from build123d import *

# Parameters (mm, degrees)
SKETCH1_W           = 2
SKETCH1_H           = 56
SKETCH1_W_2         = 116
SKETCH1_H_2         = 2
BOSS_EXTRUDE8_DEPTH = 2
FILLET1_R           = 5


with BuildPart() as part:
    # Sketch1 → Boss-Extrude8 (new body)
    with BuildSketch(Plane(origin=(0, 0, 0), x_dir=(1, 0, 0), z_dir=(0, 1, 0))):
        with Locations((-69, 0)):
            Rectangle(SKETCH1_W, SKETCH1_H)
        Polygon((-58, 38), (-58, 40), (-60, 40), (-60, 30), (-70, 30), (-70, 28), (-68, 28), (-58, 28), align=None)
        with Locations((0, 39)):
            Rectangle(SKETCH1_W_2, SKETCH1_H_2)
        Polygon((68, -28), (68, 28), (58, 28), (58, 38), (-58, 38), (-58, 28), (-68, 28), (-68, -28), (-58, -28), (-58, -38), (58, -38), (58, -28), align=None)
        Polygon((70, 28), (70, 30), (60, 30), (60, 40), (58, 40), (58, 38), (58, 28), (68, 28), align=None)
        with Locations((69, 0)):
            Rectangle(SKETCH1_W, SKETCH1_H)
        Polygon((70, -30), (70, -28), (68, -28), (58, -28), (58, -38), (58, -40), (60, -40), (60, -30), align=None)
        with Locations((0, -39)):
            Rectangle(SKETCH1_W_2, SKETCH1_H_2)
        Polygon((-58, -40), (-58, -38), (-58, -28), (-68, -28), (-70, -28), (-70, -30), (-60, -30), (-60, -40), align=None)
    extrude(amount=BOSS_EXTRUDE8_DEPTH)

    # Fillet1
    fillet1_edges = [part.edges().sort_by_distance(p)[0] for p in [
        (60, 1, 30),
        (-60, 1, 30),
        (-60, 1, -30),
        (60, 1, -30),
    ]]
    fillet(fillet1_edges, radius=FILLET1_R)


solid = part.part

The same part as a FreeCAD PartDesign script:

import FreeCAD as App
import Part
import Sketcher

V = App.Vector


def edges_at(feature, points):
    """Names of the edges that pass closest to the given points."""
    edges = feature.Shape.Edges
    near = lambda p: min(range(len(edges)), key=lambda i: edges[i].distToShape(Part.Vertex(*p))[0])
    return sorted({f"Edge{near(p) + 1}" for p in points})


def add_polygon(sketch, points):
    """Adds a closed chain of lines whose ends are joined by coincident constraints."""
    first, n = sketch.GeometryCount, len(points)
    for a, b in zip(points, points[1:] + points[:1]):
        sketch.addGeometry(Part.LineSegment(App.Vector(*a, 0), App.Vector(*b, 0)), False)
    for i in range(n):
        sketch.addConstraint(Sketcher.Constraint("Coincident", first + i, 2, first + (i + 1) % n, 1))

doc = App.newDocument("Part")
body = doc.addObject("PartDesign::Body", "Body")

sketch1 = body.newObject("Sketcher::SketchObject", "Sketch")
sketch1.AttachmentSupport = (doc.getObject("XZ_Plane"), [""])
sketch1.MapMode = "FlatFace"
add_polygon(sketch1, [(60, 40), (60, 30), (70, 30), (70, -30), (60, -30), (60, -40), (-60, -40), (-60, -30), (-70, -30), (-70, 30), (-60, 30), (-60, 40)])
sketch1.addConstraint([
    Sketcher.Constraint("Vertical", 0),
    Sketcher.Constraint("Horizontal", 1),
    Sketcher.Constraint("Vertical", 2),
    Sketcher.Constraint("Horizontal", 3),
    Sketcher.Constraint("Vertical", 4),
    Sketcher.Constraint("Horizontal", 5),
    Sketcher.Constraint("Vertical", 6),
    Sketcher.Constraint("Horizontal", 7),
    Sketcher.Constraint("Vertical", 8),
    Sketcher.Constraint("Horizontal", 9),
    Sketcher.Constraint("Vertical", 10),
    Sketcher.Constraint("Horizontal", 11),
    Sketcher.Constraint("Symmetric", 0, 2, 6, 2, -1, 1),
    Sketcher.Constraint("Symmetric", 2, 2, 8, 2, -1, 1),
    Sketcher.Constraint("Symmetric", 4, 2, 10, 2, -1, 1),
    Sketcher.Constraint("Symmetric", 3, 2, 6, 2, -2),
    Sketcher.Constraint("Equal", 9, 0),
    Sketcher.Constraint("DistanceX", 1, 1, 1, 2, 10.0),
    Sketcher.Constraint("DistanceX", 5, 2, 5, 1, 120.0),
    Sketcher.Constraint("DistanceY", 2, 2, 2, 1, 60.0),
])
pad1 = body.newObject("PartDesign::Pad", "Pad")
pad1.Profile = sketch1
pad1.Length = 2
pad1.Reversed = True
doc.recompute()

fillet = body.newObject("PartDesign::Fillet", "Fillet")
fillet.Base = (pad1, edges_at(pad1, [
    (60, 1, 30),
    (-60, 1, 30),
    (-60, 1, -30),
    (60, 1, -30),
]))
fillet.Radius = 5

doc.recompute()
